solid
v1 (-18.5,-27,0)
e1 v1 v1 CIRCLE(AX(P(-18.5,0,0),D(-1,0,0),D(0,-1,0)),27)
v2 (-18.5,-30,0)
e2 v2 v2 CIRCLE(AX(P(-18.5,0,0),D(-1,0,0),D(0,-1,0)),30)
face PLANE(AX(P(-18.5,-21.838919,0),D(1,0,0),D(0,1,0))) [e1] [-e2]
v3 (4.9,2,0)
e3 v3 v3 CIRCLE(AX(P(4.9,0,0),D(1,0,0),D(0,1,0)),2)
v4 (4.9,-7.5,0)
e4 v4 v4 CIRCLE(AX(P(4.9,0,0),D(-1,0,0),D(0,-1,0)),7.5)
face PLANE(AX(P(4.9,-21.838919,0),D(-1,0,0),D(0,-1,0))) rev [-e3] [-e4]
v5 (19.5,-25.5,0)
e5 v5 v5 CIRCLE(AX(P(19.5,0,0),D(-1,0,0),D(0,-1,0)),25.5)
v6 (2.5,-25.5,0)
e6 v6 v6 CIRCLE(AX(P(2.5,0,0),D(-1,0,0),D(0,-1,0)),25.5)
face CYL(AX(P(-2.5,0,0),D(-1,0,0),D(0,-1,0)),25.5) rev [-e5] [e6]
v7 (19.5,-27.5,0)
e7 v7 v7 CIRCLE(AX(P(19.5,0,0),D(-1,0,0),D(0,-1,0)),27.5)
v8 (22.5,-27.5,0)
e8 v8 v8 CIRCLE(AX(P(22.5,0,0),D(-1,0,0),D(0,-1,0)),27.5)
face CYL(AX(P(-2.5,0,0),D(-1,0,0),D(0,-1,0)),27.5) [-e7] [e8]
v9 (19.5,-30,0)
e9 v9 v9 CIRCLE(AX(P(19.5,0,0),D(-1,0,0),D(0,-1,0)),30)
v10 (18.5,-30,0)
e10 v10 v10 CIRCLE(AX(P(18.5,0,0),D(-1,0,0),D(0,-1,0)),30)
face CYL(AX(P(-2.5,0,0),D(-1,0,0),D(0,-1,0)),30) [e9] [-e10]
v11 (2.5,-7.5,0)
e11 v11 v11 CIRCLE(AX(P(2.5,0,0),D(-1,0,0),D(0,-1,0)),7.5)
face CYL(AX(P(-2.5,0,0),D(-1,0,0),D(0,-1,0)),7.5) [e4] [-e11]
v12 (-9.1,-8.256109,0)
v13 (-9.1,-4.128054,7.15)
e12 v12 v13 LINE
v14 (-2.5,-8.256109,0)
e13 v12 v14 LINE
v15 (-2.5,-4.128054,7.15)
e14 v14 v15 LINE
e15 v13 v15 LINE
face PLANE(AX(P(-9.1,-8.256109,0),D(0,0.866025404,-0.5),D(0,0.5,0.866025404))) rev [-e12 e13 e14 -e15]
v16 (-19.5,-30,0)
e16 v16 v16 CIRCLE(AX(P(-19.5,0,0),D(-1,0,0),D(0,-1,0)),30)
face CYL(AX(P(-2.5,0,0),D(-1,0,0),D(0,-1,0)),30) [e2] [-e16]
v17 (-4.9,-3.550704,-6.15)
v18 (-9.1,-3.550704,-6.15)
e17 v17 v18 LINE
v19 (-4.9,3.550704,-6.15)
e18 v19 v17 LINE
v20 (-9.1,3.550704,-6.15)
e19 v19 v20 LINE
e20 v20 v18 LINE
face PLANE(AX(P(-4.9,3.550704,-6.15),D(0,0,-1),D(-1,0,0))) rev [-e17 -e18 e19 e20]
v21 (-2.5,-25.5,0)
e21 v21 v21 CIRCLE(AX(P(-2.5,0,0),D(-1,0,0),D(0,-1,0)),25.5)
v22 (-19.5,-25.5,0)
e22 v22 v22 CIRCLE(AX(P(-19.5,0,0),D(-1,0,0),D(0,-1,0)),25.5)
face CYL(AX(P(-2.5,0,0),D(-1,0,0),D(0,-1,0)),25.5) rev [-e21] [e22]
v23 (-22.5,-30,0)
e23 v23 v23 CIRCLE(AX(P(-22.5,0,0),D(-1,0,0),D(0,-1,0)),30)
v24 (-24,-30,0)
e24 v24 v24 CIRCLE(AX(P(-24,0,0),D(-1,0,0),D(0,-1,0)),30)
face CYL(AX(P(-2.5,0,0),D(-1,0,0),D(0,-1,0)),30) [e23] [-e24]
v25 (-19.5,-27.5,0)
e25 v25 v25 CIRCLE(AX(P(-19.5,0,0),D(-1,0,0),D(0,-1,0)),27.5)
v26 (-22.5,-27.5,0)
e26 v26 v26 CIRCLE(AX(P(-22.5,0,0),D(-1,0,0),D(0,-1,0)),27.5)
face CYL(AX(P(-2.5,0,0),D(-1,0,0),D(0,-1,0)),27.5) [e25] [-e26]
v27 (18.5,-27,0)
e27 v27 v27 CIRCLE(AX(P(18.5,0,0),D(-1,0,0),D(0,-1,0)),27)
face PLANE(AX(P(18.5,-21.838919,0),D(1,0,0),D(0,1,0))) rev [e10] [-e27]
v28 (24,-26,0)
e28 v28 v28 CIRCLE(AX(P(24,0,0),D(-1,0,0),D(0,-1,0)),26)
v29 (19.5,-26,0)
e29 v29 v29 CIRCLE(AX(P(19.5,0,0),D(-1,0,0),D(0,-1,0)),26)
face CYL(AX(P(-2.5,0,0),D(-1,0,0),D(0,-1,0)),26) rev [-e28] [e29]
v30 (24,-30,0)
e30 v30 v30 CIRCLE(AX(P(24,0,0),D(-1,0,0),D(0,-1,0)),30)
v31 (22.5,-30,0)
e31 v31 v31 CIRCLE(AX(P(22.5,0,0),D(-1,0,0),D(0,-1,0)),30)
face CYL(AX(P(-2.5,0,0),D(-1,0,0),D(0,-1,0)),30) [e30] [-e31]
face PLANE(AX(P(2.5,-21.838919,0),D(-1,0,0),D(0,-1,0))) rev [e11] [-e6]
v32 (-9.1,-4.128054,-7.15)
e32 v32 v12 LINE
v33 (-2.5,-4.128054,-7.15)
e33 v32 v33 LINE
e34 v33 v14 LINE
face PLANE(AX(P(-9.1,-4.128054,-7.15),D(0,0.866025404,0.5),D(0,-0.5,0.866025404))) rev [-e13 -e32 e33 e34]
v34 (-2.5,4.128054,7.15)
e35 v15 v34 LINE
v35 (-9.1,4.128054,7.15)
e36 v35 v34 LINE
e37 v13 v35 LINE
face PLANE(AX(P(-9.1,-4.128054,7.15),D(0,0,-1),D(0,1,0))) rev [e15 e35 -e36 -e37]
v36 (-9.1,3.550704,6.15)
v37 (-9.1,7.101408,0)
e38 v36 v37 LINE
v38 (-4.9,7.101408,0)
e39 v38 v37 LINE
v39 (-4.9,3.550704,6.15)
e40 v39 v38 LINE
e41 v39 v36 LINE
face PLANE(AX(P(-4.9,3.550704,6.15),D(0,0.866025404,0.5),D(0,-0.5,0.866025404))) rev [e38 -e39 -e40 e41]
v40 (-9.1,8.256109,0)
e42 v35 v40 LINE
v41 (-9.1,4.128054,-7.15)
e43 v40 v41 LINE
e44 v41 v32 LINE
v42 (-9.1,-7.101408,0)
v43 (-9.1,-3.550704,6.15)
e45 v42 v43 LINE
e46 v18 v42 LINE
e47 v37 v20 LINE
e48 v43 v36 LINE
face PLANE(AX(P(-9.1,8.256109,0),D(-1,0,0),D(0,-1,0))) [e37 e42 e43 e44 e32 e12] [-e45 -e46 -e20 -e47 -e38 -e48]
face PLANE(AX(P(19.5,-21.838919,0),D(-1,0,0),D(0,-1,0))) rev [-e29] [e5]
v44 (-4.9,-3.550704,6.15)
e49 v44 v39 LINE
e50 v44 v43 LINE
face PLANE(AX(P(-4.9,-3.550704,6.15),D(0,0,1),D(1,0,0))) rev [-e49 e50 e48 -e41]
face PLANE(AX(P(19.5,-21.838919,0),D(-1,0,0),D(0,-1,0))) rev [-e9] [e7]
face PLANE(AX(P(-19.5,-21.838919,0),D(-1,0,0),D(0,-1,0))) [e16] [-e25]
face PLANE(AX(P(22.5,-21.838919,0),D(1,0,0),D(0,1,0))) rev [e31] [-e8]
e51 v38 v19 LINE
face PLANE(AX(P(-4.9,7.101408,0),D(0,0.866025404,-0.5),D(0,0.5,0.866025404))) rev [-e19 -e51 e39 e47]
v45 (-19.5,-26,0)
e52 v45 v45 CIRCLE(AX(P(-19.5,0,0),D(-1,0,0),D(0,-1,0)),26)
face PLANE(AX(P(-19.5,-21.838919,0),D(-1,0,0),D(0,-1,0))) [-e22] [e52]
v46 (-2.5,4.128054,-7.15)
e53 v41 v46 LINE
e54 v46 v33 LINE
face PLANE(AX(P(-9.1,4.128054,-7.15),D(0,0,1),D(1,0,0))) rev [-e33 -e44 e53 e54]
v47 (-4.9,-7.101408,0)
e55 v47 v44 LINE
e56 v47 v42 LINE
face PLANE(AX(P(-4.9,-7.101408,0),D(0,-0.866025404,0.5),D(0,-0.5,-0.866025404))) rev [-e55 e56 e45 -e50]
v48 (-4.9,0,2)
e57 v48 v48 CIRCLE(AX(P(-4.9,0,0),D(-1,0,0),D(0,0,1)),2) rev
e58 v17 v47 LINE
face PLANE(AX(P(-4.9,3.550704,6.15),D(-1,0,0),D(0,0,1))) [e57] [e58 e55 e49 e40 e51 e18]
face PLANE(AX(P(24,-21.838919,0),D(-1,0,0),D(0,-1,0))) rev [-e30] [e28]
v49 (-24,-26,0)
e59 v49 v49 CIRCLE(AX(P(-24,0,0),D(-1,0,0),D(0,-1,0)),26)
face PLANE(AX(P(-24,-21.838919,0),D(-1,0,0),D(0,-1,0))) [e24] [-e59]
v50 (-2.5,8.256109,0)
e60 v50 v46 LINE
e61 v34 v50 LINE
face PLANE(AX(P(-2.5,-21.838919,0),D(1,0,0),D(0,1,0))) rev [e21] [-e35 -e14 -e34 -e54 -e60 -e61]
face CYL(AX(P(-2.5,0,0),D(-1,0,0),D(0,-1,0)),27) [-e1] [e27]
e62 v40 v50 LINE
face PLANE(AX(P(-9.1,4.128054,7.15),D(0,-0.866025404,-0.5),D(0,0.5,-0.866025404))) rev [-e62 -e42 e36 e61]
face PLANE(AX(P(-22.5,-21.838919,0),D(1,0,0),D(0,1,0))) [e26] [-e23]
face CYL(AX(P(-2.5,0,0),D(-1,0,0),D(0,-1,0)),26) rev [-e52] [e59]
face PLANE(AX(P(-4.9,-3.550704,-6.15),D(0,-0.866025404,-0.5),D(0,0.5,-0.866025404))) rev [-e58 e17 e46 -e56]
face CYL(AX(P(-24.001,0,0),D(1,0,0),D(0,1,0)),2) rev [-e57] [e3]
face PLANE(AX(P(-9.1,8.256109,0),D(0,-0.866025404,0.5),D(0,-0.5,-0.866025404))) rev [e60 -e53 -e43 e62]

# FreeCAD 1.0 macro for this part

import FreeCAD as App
import Part
import Sketcher
from FreeCAD import Vector
Q = App.Units.Quantity


def add_polygon(sketch, points):
    """Adds a closed chain of lines whose ends are joined by coincident constraints."""
    first, n = sketch.GeometryCount, len(points)
    for a, b in zip(points, points[1:] + points[:1]):
        sketch.addGeometry(Part.LineSegment(App.Vector(*a, 0), App.Vector(*b, 0)), False)
    for i in range(n):
        sketch.addConstraint(Sketcher.Constraint("Coincident", first + i, 2, first + (i + 1) % n, 1))

doc = App.newDocument("Part")
body = doc.addObject("PartDesign::Body", "Body")

# Sketch on XY plane
sketch1 = body.newObject("Sketcher::SketchObject", "Sketch")
sketch1.AttachmentSupport = (doc.getObject("XY_Plane"), [""])
sketch1.MapMode = "FlatFace"
add_polygon(sketch1, [(-2.5, 0), (4.9, 0), (4.9, 7.5), (2.5, 7.5), (2.5, 25.5), (19.5, 25.5), (19.5, 26), (24, 26), (24, 30), (22.5, 30), (22.5, 27.5), (19.5, 27.5), (19.5, 30), (18.5, 30), (18.5, 27), (-18.5, 27), (-18.5, 30), (-19.5, 30), (-19.5, 27.5), (-22.5, 27.5), (-22.5, 30), (-24, 30), (-24, 26), (-19.5, 26), (-19.5, 25.5), (-2.5, 25.5)])  # lines 0-25
sketch1.addConstraint(Sketcher.Constraint("Horizontal", 0))
sketch1.addConstraint(Sketcher.Constraint("Vertical", 1))
sketch1.addConstraint(Sketcher.Constraint("Horizontal", 2))
sketch1.addConstraint(Sketcher.Constraint("Vertical", 3))
sketch1.addConstraint(Sketcher.Constraint("Horizontal", 4))
sketch1.addConstraint(Sketcher.Constraint("Vertical", 5))
sketch1.addConstraint(Sketcher.Constraint("Horizontal", 6))
sketch1.addConstraint(Sketcher.Constraint("Vertical", 7))
sketch1.addConstraint(Sketcher.Constraint("Horizontal", 8))
sketch1.addConstraint(Sketcher.Constraint("Vertical", 9))
sketch1.addConstraint(Sketcher.Constraint("Horizontal", 10))
sketch1.addConstraint(Sketcher.Constraint("Vertical", 11))
sketch1.addConstraint(Sketcher.Constraint("Horizontal", 12))
sketch1.addConstraint(Sketcher.Constraint("Vertical", 13))
sketch1.addConstraint(Sketcher.Constraint("Horizontal", 14))
sketch1.addConstraint(Sketcher.Constraint("Vertical", 15))
sketch1.addConstraint(Sketcher.Constraint("Horizontal", 16))
sketch1.addConstraint(Sketcher.Constraint("Vertical", 17))
sketch1.addConstraint(Sketcher.Constraint("Horizontal", 18))
sketch1.addConstraint(Sketcher.Constraint("Vertical", 19))
sketch1.addConstraint(Sketcher.Constraint("Horizontal", 20))
sketch1.addConstraint(Sketcher.Constraint("Vertical", 21))
sketch1.addConstraint(Sketcher.Constraint("Horizontal", 22))
sketch1.addConstraint(Sketcher.Constraint("Vertical", 23))
sketch1.addConstraint(Sketcher.Constraint("Horizontal", 24))
sketch1.addConstraint(Sketcher.Constraint("Vertical", 25))
sketch1.addConstraint(Sketcher.Constraint("Symmetric", 12, 2, 15, 2, -2))
sketch1.addConstraint(Sketcher.Constraint("Symmetric", 10, 2, 17, 2, -2))
sketch1.addConstraint(Sketcher.Constraint("Symmetric", 8, 2, 19, 2, -2))
sketch1.addConstraint(Sketcher.Constraint("Symmetric", 6, 2, 21, 2, -2))
sketch1.addConstraint(Sketcher.Constraint("Symmetric", 4, 2, 23, 2, -2))
sketch1.addConstraint(Sketcher.Constraint("PointOnObject", 0, 2, -1))
sketch1.addConstraint(Sketcher.Constraint("Horizontal", 8, 2, 11, 2))
sketch1.addConstraint(Sketcher.Constraint("Vertical", 5, 2, 10, 2))
sketch1.addConstraint(Sketcher.Constraint("Equal", 4, 24))
sketch1.addConstraint(Sketcher.Constraint("Equal", 18, 13))
sketch1.addConstraint(Sketcher.Constraint("DistanceX", 4, 1, 4, 2, Q("17 mm")))
sketch1.addConstraint(Sketcher.Constraint("DistanceX", 10, 2, 10, 1, Q("3 mm")))
sketch1.addConstraint(Sketcher.Constraint("DistanceX", 12, 2, 12, 1, Q("1 mm")))
sketch1.addConstraint(Sketcher.Constraint("DistanceX", 14, 2, 14, 1, Q("37 mm")))
sketch1.addConstraint(Sketcher.Constraint("DistanceY", 3, 1, 3, 2, Q("18 mm")))
sketch1.addConstraint(Sketcher.Constraint("DistanceY", 7, 1, 7, 2, Q("4 mm")))
sketch1.addConstraint(Sketcher.Constraint("DistanceX", 0, 1, 0, 2, Q("7.4 mm")))
sketch1.addConstraint(Sketcher.Constraint("DistanceX", 6, 1, 6, 2, Q("4.5 mm")))
sketch1.addConstraint(Sketcher.Constraint("DistanceY", 1, 1, 1, 2, Q("7.5 mm")))
sketch1.addConstraint(Sketcher.Constraint("DistanceY", 5, 1, 5, 2, Q("0.5 mm")))
sketch1.addConstraint(Sketcher.Constraint("DistanceY", 9, 2, 9, 1, Q("2.5 mm")))
revolution = body.newObject("PartDesign::Revolution", "Revolution")
revolution.Profile = sketch1
revolution.ReferenceAxis = (sketch1, ["H_Axis"])
revolution.Angle = 360

# Sketch on YZ plane
sketch2 = body.newObject("Sketcher::SketchObject", "Sketch001")
sketch2.AttachmentSupport = (doc.getObject("YZ_Plane"), [""])
sketch2.MapMode = "FlatFace"
sketch2.AttachmentOffset = App.Placement(Vector(0, 0, 4.9), App.Rotation())
sketch2.addGeometry(Part.Circle(Vector(0, 0, 0), Vector(0, 0, 1), 2), False)
sketch2.addConstraint(Sketcher.Constraint("Coincident", 0, 3, -1, 1))
sketch2.addConstraint(Sketcher.Constraint("Diameter", 0, Q("4 mm")))
pocket1 = body.newObject("PartDesign::Pocket", "Pocket")
pocket1.Profile = sketch2
pocket1.Type = "UpToFirst"

# Sketch on YZ plane
sketch3 = body.newObject("Sketcher::SketchObject", "Sketch002")
sketch3.AttachmentSupport = (doc.getObject("YZ_Plane"), [""])
sketch3.MapMode = "FlatFace"
sketch3.AttachmentOffset = App.Placement(Vector(0, 0, -2.5), App.Rotation())
add_polygon(sketch3, [(8.3, 0), (4.1, -7.2), (-4.1, -7.2), (-8.3, 0), (-4.1, 7.2), (4.1, 7.2)])  # lines 0-5
sketch3.addGeometry(Part.Circle(Vector(0, 0, 0), Vector(0, 0, 1), 2), False)  # 6
sketch3.addConstraint(Sketcher.Constraint("Horizontal", 1))
sketch3.addConstraint(Sketcher.Constraint("Horizontal", 4))
sketch3.addConstraint(Sketcher.Constraint("Coincident", 6, 3, -1, 1))
sketch3.addConstraint(Sketcher.Constraint("Symmetric", 0, 2, 3, 2, -1, 1))
sketch3.addConstraint(Sketcher.Constraint("Symmetric", 2, 2, 5, 2, -1, 1))
sketch3.addConstraint(Sketcher.Constraint("PointOnObject", 2, 2, -1))
sketch3.addConstraint(Sketcher.Constraint("Parallel", 2, 5))
sketch3.addConstraint(Sketcher.Constraint("Vertical", 1, 2, 3, 2))
sketch3.addConstraint(Sketcher.Constraint("Diameter", 6, Q("4 mm")))
sketch3.addConstraint(Sketcher.Constraint("Angle", 0, Q("-120 deg")))
sketch3.addConstraint(Sketcher.Constraint("DistanceY", 1, 2, 3, 2, Q("14.3 mm")))
sketch3.addConstraint(Sketcher.Constraint("DistanceX", 1, 2, 1, 1, Q("8.256109 mm")))
pad1 = body.newObject("PartDesign::Pad", "Pad")
pad1.Profile = sketch3
pad1.Length = 6.6
pad1.Reversed = True

# Sketch on YZ plane
sketch4 = body.newObject("Sketcher::SketchObject", "Sketch003")
sketch4.AttachmentSupport = (doc.getObject("YZ_Plane"), [""])
sketch4.MapMode = "FlatFace"
sketch4.AttachmentOffset = App.Placement(Vector(0, 0, -9.1), App.Rotation())
add_polygon(sketch4, [(4, 6), (7, 0), (4, -6), (-4, -6), (-7, 0), (-4, 6)])  # lines 0-5
sketch4.addConstraint(Sketcher.Constraint("Horizontal", 2))
sketch4.addConstraint(Sketcher.Constraint("Horizontal", 5))
sketch4.addConstraint(Sketcher.Constraint("Symmetric", 0, 2, 3, 2, -1, 1))
sketch4.addConstraint(Sketcher.Constraint("Symmetric", 1, 2, 4, 2, -1, 1))
sketch4.addConstraint(Sketcher.Constraint("PointOnObject", 0, 2, -1))
sketch4.addConstraint(Sketcher.Constraint("Parallel", 0, 3))
sketch4.addConstraint(Sketcher.Constraint("Vertical", 2, 2, 4, 2))
sketch4.addConstraint(Sketcher.Constraint("Angle", 0, Q("-60 deg")))
sketch4.addConstraint(Sketcher.Constraint("DistanceY", 2, 2, 4, 2, Q("12.3 mm")))
sketch4.addConstraint(Sketcher.Constraint("DistanceX", 2, 2, 2, 1, Q("7.101408 mm")))
pocket2 = body.newObject("PartDesign::Pocket", "Pocket001")
pocket2.Profile = sketch4
pocket2.Length = 4.2
pocket2.Reversed = True

doc.recompute()
